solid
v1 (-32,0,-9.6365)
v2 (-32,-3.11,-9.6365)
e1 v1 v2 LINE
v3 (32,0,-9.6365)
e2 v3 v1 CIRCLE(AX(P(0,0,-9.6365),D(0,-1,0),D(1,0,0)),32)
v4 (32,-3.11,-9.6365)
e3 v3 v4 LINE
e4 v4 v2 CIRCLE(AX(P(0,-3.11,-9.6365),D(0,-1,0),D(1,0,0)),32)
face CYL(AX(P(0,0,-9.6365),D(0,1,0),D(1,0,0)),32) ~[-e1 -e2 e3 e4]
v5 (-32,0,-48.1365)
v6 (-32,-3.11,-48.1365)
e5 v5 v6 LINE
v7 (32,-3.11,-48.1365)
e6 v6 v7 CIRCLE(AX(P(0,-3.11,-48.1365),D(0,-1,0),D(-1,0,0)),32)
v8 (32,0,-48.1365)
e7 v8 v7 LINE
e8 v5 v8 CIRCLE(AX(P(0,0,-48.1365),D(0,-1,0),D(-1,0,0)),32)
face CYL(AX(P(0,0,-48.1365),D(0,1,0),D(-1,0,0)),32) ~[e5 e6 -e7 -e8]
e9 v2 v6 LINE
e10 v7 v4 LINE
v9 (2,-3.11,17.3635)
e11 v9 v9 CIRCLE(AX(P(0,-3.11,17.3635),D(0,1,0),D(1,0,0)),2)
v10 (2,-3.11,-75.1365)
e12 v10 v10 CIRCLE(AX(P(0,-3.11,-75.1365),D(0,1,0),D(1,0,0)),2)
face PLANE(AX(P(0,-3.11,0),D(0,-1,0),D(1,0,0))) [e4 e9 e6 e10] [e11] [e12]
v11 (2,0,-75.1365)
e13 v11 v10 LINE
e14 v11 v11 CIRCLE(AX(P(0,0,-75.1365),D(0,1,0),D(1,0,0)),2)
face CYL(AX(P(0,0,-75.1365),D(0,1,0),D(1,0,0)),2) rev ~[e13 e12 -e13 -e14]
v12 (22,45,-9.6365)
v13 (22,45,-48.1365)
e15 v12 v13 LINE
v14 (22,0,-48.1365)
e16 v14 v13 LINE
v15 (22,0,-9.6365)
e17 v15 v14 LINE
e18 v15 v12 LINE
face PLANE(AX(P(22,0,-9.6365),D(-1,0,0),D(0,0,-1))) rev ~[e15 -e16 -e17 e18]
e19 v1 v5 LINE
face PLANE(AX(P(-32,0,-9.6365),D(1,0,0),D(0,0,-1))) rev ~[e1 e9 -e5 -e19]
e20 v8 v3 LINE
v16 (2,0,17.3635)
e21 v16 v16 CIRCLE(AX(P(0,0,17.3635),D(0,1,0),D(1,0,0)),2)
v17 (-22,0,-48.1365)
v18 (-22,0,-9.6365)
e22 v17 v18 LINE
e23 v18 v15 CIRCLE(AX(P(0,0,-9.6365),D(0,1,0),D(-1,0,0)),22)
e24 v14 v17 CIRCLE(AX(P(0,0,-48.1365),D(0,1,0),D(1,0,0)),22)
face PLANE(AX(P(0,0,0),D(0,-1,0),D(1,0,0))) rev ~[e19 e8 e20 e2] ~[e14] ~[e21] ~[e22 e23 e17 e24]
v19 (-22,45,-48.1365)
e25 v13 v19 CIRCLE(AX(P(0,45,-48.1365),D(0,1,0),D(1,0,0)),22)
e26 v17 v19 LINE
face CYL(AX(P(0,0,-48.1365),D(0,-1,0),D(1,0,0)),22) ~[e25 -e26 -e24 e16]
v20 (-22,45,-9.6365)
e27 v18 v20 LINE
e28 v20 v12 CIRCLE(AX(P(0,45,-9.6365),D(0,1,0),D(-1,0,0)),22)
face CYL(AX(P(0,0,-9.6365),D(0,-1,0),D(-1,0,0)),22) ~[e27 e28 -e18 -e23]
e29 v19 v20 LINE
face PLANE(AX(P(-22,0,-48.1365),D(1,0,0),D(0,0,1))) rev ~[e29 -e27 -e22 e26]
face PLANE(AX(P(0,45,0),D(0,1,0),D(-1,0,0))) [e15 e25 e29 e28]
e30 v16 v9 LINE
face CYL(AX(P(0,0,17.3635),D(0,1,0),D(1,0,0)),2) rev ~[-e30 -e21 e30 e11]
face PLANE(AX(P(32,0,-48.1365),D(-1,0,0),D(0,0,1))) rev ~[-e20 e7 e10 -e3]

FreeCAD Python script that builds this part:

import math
import FreeCAD as App
import Part
import Sketcher

doc = App.newDocument("Part")
params = doc.addObject("Spreadsheet::Sheet", "Params")
for row, (alias, value) in enumerate([
    ("sketch1_radius", "22 mm"),
    ("sketch1_height", "38.5 mm"),
    ("pad1_length", "45 mm"),
    ("sketch2_radius", "32 mm"),
    ("sketch2_height", "38.5 mm"),
    ("pad2_length", "3.11 mm"),
    ("sketch3_diameter", "4 mm"),
    ("pocket1_length", "7.7 mm"),
], start=1):
    params.set(f"A{row}", alias)
    params.set(f"B{row}", "=" + value)
    params.setAlias(f"B{row}", alias)

body = doc.addObject("PartDesign::Body", "Body")

# Sketch on XZ plane
sketch1 = body.newObject("Sketcher::SketchObject", "Sketch")
sketch1.AttachmentSupport = (doc.getObject("XZ_Plane"), [""])
sketch1.MapMode = "FlatFace"
sketch1.addGeometry([
    Part.ArcOfCircle(Part.Circle(App.Vector(0, -10, 0), App.Vector(0, 0, 1), 22), math.radians(0), math.radians(180)),
    Part.LineSegment(App.Vector(22, -10, 0), App.Vector(22, -48, 0)),
    Part.ArcOfCircle(Part.Circle(App.Vector(0, -48, 0), App.Vector(0, 0, 1), 22), math.radians(180), math.radians(360)),
    Part.LineSegment(App.Vector(-22, -48, 0), App.Vector(-22, -10, 0)),
], False)
sketch1.addConstraint([
    Sketcher.Constraint("Tangent", 0, 1, 1, 1),
    Sketcher.Constraint("Tangent", 1, 2, 2, 2),
    Sketcher.Constraint("Tangent", 2, 1, 3, 1),
    Sketcher.Constraint("Tangent", 3, 2, 0, 2),
    Sketcher.Constraint("Vertical", 1),
    Sketcher.Constraint("Vertical", 3),
    Sketcher.Constraint("PointOnObject", 0, 3, -2),
    Sketcher.Constraint("Radius", 0, 22.0),
    Sketcher.Constraint("DistanceY", 1, 2, 1, 1, 38.5),
    Sketcher.Constraint("DistanceY", 0, 3, -1, 1, 9.6365),
])
sketch1.setExpression("Constraints[7]", "Params.sketch1_radius")
sketch1.setExpression("Constraints[8]", "Params.sketch1_height")
pad1 = body.newObject("PartDesign::Pad", "Pad")
pad1.Profile = sketch1
pad1.setExpression("Length", "Params.pad1_length")
pad1.Reversed = True

# Sketch on XZ plane
sketch2 = body.newObject("Sketcher::SketchObject", "Sketch001")
sketch2.AttachmentSupport = (doc.getObject("XZ_Plane"), [""])
sketch2.MapMode = "FlatFace"
sketch2.addGeometry([
    Part.ArcOfCircle(Part.Circle(App.Vector(0, -10, 0), App.Vector(0, 0, 1), 32), math.radians(0), math.radians(180)),
    Part.LineSegment(App.Vector(-32, -10, 0), App.Vector(-32, -48, 0)),
    Part.ArcOfCircle(Part.Circle(App.Vector(0, -48, 0), App.Vector(0, 0, 1), 32), math.radians(180), math.radians(360)),
    Part.LineSegment(App.Vector(32, -48, 0), App.Vector(32, -10, 0)),
], False)
sketch2.addConstraint([
    Sketcher.Constraint("Tangent", 0, 2, 1, 1),
    Sketcher.Constraint("Tangent", 1, 2, 2, 1),
    Sketcher.Constraint("Tangent", 2, 2, 3, 1),
    Sketcher.Constraint("Tangent", 3, 2, 0, 1),
    Sketcher.Constraint("Vertical", 1),
    Sketcher.Constraint("Vertical", 3),
    Sketcher.Constraint("PointOnObject", 0, 3, -2),
    Sketcher.Constraint("Radius", 0, 32.0),
    Sketcher.Constraint("DistanceY", 1, 2, 1, 1, 38.5),
    Sketcher.Constraint("DistanceY", 0, 3, -1, 1, 9.6365),
])
sketch2.setExpression("Constraints[7]", "Params.sketch2_radius")
sketch2.setExpression("Constraints[8]", "Params.sketch2_height")
pad2 = body.newObject("PartDesign::Pad", "Pad001")
pad2.Profile = sketch2
pad2.setExpression("Length", "Params.pad2_length")

# Sketch on XZ plane
sketch3 = body.newObject("Sketcher::SketchObject", "Sketch002")
sketch3.AttachmentSupport = (doc.getObject("XZ_Plane"), [""])
sketch3.MapMode = "FlatFace"
sketch3.addGeometry([
    Part.Circle(App.Vector(0, 17.4, 0), App.Vector(0, 0, 1), 2),
    Part.Circle(App.Vector(0, -75.1, 0), App.Vector(0, 0, 1), 2),
], False)
sketch3.addConstraint([
    Sketcher.Constraint("Equal", 0, 1),
    Sketcher.Constraint("PointOnObject", 0, 3, -2),
    Sketcher.Constraint("PointOnObject", 1, 3, -2),
    Sketcher.Constraint("Diameter", 0, 4.0),
    Sketcher.Constraint("DistanceY", 1, 3, 0, 3, 92.5),
    Sketcher.Constraint("DistanceY", -1, 1, 0, 3, 17.3635),
])
sketch3.setExpression("Constraints[3]", "Params.sketch3_diameter")
pocket1 = body.newObject("PartDesign::Pocket", "Pocket")
pocket1.Profile = sketch3
pocket1.setExpression("Length", "Params.pocket1_length")
pocket1.Reversed = True

doc.recompute()
